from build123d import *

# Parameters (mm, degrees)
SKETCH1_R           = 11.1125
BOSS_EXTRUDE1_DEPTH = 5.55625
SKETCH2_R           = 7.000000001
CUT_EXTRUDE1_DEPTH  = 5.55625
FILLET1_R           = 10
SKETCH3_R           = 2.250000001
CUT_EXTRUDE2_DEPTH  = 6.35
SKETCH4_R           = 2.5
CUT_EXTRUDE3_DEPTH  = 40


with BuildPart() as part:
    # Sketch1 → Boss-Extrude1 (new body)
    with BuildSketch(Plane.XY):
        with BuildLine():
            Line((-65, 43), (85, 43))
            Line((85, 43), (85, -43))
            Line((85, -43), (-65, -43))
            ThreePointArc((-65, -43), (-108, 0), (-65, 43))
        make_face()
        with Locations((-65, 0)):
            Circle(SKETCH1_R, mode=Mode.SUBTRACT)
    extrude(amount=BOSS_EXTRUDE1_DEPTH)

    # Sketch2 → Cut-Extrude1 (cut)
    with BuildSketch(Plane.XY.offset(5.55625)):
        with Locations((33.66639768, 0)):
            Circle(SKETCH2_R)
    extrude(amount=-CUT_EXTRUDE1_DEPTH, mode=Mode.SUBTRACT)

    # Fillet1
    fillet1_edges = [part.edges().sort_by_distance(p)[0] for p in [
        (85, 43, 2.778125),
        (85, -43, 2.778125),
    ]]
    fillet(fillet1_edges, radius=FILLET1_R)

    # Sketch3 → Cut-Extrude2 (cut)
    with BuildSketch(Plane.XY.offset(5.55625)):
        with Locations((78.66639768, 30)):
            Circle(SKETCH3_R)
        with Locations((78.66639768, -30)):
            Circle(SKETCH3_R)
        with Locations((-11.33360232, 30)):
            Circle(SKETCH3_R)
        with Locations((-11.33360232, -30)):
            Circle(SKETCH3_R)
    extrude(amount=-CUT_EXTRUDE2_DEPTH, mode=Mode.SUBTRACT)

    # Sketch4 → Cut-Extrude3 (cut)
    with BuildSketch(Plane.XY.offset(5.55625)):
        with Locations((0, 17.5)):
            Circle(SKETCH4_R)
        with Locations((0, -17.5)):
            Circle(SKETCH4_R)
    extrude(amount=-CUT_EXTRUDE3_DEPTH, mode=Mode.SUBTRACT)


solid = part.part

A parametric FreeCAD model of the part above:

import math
import FreeCAD as App
import Part
import Sketcher


def edges_at(feature, points):
    """Names of the edges that pass closest to the given points."""
    edges = feature.Shape.Edges
    near = lambda p: min(range(len(edges)), key=lambda i: edges[i].distToShape(Part.Vertex(*p))[0])
    return sorted({f"Edge{near(p) + 1}" for p in points})

doc = App.newDocument("Part")
params = doc.addObject("Spreadsheet::Sheet", "Params")
for row, (alias, value) in enumerate([
    ("sketch1_radius", "43 mm"),
    ("sketch1_width", "150 mm"),
    ("pad1_length", "5.55625 mm"),
    ("sketch2_diameter", "14 mm"),
    ("pocket1_length", "5.55625 mm"),
    ("fillet_radius", "10 mm"),
    ("sketch3_diameter", "4.5 mm"),
    ("pocket2_length", "6.35 mm"),
    ("sketch4_diameter", "5 mm"),
    ("pocket3_length", "40 mm"),
], start=1):
    params.set(f"A{row}", alias)
    params.set(f"B{row}", "=" + value)
    params.setAlias(f"B{row}", alias)

body = doc.addObject("PartDesign::Body", "Body")

# Sketch on XY plane
sketch1 = body.newObject("Sketcher::SketchObject", "Sketch")
sketch1.AttachmentSupport = (doc.getObject("XY_Plane"), [""])
sketch1.MapMode = "FlatFace"
sketch1.addGeometry([
    Part.LineSegment(App.Vector(85, 43, 0), App.Vector(-65, 43, 0)),  # 0
    Part.ArcOfCircle(Part.Circle(App.Vector(-65, 0, 0), App.Vector(0, 0, 1), 43), math.radians(90), math.radians(270)),  # 1
    Part.LineSegment(App.Vector(-65, -43, 0), App.Vector(85, -43, 0)),  # 2
    Part.LineSegment(App.Vector(85, -43, 0), App.Vector(85, 43, 0)),  # 3
    Part.Circle(App.Vector(-65, 0, 0), App.Vector(0, 0, 1), 11),  # 4
], False)
sketch1.addConstraint([
    Sketcher.Constraint("Tangent", 0, 2, 1, 1),
    Sketcher.Constraint("Tangent", 1, 2, 2, 1),
    Sketcher.Constraint("Coincident", 2, 2, 3, 1),
    Sketcher.Constraint("Coincident", 3, 2, 0, 1),
    Sketcher.Constraint("Horizontal", 0),
    Sketcher.Constraint("Horizontal", 2),
    Sketcher.Constraint("Vertical", 3),
    Sketcher.Constraint("Coincident", 4, 3, 1, 3),
    Sketcher.Constraint("PointOnObject", 1, 3, -1),
    Sketcher.Constraint("Radius", 1, 43.0),
    Sketcher.Constraint("DistanceX", 0, 2, 0, 1, 150.0),
    Sketcher.Constraint("Diameter", 4, 22.225),
    Sketcher.Constraint("DistanceX", 1, 3, -1, 1, 65.0),
])
sketch1.setExpression("Constraints[9]", "Params.sketch1_radius")
sketch1.setExpression("Constraints[10]", "Params.sketch1_width")
pad1 = body.newObject("PartDesign::Pad", "Pad")
pad1.Profile = sketch1
pad1.setExpression("Length", "Params.pad1_length")

# Sketch on XY plane
sketch2 = body.newObject("Sketcher::SketchObject", "Sketch001")
sketch2.AttachmentSupport = (doc.getObject("XY_Plane"), [""])
sketch2.MapMode = "FlatFace"
sketch2.AttachmentOffset = App.Placement(App.Vector(0, 0, 5.55625), App.Rotation())
sketch2.addGeometry(Part.Circle(App.Vector(34, 0, 0), App.Vector(0, 0, 1), 7), False)
sketch2.addConstraint([
    Sketcher.Constraint("PointOnObject", 0, 3, -1),
    Sketcher.Constraint("Diameter", 0, 14.0),
    Sketcher.Constraint("DistanceX", -1, 1, 0, 3, 33.666398),
])
sketch2.setExpression("Constraints[1]", "Params.sketch2_diameter")
pocket1 = body.newObject("PartDesign::Pocket", "Pocket")
pocket1.Profile = sketch2
pocket1.setExpression("Length", "Params.pocket1_length")
doc.recompute()

fillet = body.newObject("PartDesign::Fillet", "Fillet")
fillet.Base = (pocket1, edges_at(pocket1, [(85, 43, 2.778), (85, -43, 2.778)]))
fillet.setExpression("Radius", "Params.fillet_radius")

# Sketch on XY plane
sketch3 = body.newObject("Sketcher::SketchObject", "Sketch002")
sketch3.AttachmentSupport = (doc.getObject("XY_Plane"), [""])
sketch3.MapMode = "FlatFace"
sketch3.AttachmentOffset = App.Placement(App.Vector(0, 0, 5.55625), App.Rotation())
sketch3.addGeometry([
    Part.Circle(App.Vector(78.7, 30, 0), App.Vector(0, 0, 1), 2.3),
    Part.Circle(App.Vector(78.7, -30, 0), App.Vector(0, 0, 1), 2.3),
    Part.Circle(App.Vector(-11.3, 30, 0), App.Vector(0, 0, 1), 2.3),
    Part.Circle(App.Vector(-11.3, -30, 0), App.Vector(0, 0, 1), 2.3),
], False)
sketch3.addConstraint([
    Sketcher.Constraint("Equal", 0, 1),
    Sketcher.Constraint("Equal", 1, 2),
    Sketcher.Constraint("Equal", 2, 3),
    Sketcher.Constraint("Symmetric", 0, 3, 1, 3, -1),
    Sketcher.Constraint("Symmetric", 2, 3, 3, 3, -1),
    Sketcher.Constraint("Horizontal", 0, 3, 2, 3),
    Sketcher.Constraint("Diameter", 0, 4.5),
    Sketcher.Constraint("DistanceY", -1, 1, 0, 3, 30.0),
    Sketcher.Constraint("DistanceX", 2, 3, 0, 3, 90.0),
    Sketcher.Constraint("DistanceX", -1, 1, 0, 3, 78.666398),
])
sketch3.setExpression("Constraints[6]", "Params.sketch3_diameter")
pocket2 = body.newObject("PartDesign::Pocket", "Pocket001")
pocket2.Profile = sketch3
pocket2.setExpression("Length", "Params.pocket2_length")

# Sketch on XY plane
sketch4 = body.newObject("Sketcher::SketchObject", "Sketch003")
sketch4.AttachmentSupport = (doc.getObject("XY_Plane"), [""])
sketch4.MapMode = "FlatFace"
sketch4.AttachmentOffset = App.Placement(App.Vector(0, 0, 5.55625), App.Rotation())
sketch4.addGeometry([
    Part.Circle(App.Vector(0, 17.5, 0), App.Vector(0, 0, 1), 2.5),
    Part.Circle(App.Vector(0, -17.5, 0), App.Vector(0, 0, 1), 2.5),
], False)
sketch4.addConstraint([
    Sketcher.Constraint("Equal", 0, 1),
    Sketcher.Constraint("Symmetric", 0, 3, 1, 3, -1, 1),
    Sketcher.Constraint("PointOnObject", 0, 3, -2),
    Sketcher.Constraint("Diameter", 0, 5.0),
    Sketcher.Constraint("DistanceY", 1, 3, 0, 3, 35.0),
])
sketch4.setExpression("Constraints[3]", "Params.sketch4_diameter")
pocket3 = body.newObject("PartDesign::Pocket", "Pocket002")
pocket3.Profile = sketch4
pocket3.setExpression("Length", "Params.pocket3_length")

doc.recompute()
